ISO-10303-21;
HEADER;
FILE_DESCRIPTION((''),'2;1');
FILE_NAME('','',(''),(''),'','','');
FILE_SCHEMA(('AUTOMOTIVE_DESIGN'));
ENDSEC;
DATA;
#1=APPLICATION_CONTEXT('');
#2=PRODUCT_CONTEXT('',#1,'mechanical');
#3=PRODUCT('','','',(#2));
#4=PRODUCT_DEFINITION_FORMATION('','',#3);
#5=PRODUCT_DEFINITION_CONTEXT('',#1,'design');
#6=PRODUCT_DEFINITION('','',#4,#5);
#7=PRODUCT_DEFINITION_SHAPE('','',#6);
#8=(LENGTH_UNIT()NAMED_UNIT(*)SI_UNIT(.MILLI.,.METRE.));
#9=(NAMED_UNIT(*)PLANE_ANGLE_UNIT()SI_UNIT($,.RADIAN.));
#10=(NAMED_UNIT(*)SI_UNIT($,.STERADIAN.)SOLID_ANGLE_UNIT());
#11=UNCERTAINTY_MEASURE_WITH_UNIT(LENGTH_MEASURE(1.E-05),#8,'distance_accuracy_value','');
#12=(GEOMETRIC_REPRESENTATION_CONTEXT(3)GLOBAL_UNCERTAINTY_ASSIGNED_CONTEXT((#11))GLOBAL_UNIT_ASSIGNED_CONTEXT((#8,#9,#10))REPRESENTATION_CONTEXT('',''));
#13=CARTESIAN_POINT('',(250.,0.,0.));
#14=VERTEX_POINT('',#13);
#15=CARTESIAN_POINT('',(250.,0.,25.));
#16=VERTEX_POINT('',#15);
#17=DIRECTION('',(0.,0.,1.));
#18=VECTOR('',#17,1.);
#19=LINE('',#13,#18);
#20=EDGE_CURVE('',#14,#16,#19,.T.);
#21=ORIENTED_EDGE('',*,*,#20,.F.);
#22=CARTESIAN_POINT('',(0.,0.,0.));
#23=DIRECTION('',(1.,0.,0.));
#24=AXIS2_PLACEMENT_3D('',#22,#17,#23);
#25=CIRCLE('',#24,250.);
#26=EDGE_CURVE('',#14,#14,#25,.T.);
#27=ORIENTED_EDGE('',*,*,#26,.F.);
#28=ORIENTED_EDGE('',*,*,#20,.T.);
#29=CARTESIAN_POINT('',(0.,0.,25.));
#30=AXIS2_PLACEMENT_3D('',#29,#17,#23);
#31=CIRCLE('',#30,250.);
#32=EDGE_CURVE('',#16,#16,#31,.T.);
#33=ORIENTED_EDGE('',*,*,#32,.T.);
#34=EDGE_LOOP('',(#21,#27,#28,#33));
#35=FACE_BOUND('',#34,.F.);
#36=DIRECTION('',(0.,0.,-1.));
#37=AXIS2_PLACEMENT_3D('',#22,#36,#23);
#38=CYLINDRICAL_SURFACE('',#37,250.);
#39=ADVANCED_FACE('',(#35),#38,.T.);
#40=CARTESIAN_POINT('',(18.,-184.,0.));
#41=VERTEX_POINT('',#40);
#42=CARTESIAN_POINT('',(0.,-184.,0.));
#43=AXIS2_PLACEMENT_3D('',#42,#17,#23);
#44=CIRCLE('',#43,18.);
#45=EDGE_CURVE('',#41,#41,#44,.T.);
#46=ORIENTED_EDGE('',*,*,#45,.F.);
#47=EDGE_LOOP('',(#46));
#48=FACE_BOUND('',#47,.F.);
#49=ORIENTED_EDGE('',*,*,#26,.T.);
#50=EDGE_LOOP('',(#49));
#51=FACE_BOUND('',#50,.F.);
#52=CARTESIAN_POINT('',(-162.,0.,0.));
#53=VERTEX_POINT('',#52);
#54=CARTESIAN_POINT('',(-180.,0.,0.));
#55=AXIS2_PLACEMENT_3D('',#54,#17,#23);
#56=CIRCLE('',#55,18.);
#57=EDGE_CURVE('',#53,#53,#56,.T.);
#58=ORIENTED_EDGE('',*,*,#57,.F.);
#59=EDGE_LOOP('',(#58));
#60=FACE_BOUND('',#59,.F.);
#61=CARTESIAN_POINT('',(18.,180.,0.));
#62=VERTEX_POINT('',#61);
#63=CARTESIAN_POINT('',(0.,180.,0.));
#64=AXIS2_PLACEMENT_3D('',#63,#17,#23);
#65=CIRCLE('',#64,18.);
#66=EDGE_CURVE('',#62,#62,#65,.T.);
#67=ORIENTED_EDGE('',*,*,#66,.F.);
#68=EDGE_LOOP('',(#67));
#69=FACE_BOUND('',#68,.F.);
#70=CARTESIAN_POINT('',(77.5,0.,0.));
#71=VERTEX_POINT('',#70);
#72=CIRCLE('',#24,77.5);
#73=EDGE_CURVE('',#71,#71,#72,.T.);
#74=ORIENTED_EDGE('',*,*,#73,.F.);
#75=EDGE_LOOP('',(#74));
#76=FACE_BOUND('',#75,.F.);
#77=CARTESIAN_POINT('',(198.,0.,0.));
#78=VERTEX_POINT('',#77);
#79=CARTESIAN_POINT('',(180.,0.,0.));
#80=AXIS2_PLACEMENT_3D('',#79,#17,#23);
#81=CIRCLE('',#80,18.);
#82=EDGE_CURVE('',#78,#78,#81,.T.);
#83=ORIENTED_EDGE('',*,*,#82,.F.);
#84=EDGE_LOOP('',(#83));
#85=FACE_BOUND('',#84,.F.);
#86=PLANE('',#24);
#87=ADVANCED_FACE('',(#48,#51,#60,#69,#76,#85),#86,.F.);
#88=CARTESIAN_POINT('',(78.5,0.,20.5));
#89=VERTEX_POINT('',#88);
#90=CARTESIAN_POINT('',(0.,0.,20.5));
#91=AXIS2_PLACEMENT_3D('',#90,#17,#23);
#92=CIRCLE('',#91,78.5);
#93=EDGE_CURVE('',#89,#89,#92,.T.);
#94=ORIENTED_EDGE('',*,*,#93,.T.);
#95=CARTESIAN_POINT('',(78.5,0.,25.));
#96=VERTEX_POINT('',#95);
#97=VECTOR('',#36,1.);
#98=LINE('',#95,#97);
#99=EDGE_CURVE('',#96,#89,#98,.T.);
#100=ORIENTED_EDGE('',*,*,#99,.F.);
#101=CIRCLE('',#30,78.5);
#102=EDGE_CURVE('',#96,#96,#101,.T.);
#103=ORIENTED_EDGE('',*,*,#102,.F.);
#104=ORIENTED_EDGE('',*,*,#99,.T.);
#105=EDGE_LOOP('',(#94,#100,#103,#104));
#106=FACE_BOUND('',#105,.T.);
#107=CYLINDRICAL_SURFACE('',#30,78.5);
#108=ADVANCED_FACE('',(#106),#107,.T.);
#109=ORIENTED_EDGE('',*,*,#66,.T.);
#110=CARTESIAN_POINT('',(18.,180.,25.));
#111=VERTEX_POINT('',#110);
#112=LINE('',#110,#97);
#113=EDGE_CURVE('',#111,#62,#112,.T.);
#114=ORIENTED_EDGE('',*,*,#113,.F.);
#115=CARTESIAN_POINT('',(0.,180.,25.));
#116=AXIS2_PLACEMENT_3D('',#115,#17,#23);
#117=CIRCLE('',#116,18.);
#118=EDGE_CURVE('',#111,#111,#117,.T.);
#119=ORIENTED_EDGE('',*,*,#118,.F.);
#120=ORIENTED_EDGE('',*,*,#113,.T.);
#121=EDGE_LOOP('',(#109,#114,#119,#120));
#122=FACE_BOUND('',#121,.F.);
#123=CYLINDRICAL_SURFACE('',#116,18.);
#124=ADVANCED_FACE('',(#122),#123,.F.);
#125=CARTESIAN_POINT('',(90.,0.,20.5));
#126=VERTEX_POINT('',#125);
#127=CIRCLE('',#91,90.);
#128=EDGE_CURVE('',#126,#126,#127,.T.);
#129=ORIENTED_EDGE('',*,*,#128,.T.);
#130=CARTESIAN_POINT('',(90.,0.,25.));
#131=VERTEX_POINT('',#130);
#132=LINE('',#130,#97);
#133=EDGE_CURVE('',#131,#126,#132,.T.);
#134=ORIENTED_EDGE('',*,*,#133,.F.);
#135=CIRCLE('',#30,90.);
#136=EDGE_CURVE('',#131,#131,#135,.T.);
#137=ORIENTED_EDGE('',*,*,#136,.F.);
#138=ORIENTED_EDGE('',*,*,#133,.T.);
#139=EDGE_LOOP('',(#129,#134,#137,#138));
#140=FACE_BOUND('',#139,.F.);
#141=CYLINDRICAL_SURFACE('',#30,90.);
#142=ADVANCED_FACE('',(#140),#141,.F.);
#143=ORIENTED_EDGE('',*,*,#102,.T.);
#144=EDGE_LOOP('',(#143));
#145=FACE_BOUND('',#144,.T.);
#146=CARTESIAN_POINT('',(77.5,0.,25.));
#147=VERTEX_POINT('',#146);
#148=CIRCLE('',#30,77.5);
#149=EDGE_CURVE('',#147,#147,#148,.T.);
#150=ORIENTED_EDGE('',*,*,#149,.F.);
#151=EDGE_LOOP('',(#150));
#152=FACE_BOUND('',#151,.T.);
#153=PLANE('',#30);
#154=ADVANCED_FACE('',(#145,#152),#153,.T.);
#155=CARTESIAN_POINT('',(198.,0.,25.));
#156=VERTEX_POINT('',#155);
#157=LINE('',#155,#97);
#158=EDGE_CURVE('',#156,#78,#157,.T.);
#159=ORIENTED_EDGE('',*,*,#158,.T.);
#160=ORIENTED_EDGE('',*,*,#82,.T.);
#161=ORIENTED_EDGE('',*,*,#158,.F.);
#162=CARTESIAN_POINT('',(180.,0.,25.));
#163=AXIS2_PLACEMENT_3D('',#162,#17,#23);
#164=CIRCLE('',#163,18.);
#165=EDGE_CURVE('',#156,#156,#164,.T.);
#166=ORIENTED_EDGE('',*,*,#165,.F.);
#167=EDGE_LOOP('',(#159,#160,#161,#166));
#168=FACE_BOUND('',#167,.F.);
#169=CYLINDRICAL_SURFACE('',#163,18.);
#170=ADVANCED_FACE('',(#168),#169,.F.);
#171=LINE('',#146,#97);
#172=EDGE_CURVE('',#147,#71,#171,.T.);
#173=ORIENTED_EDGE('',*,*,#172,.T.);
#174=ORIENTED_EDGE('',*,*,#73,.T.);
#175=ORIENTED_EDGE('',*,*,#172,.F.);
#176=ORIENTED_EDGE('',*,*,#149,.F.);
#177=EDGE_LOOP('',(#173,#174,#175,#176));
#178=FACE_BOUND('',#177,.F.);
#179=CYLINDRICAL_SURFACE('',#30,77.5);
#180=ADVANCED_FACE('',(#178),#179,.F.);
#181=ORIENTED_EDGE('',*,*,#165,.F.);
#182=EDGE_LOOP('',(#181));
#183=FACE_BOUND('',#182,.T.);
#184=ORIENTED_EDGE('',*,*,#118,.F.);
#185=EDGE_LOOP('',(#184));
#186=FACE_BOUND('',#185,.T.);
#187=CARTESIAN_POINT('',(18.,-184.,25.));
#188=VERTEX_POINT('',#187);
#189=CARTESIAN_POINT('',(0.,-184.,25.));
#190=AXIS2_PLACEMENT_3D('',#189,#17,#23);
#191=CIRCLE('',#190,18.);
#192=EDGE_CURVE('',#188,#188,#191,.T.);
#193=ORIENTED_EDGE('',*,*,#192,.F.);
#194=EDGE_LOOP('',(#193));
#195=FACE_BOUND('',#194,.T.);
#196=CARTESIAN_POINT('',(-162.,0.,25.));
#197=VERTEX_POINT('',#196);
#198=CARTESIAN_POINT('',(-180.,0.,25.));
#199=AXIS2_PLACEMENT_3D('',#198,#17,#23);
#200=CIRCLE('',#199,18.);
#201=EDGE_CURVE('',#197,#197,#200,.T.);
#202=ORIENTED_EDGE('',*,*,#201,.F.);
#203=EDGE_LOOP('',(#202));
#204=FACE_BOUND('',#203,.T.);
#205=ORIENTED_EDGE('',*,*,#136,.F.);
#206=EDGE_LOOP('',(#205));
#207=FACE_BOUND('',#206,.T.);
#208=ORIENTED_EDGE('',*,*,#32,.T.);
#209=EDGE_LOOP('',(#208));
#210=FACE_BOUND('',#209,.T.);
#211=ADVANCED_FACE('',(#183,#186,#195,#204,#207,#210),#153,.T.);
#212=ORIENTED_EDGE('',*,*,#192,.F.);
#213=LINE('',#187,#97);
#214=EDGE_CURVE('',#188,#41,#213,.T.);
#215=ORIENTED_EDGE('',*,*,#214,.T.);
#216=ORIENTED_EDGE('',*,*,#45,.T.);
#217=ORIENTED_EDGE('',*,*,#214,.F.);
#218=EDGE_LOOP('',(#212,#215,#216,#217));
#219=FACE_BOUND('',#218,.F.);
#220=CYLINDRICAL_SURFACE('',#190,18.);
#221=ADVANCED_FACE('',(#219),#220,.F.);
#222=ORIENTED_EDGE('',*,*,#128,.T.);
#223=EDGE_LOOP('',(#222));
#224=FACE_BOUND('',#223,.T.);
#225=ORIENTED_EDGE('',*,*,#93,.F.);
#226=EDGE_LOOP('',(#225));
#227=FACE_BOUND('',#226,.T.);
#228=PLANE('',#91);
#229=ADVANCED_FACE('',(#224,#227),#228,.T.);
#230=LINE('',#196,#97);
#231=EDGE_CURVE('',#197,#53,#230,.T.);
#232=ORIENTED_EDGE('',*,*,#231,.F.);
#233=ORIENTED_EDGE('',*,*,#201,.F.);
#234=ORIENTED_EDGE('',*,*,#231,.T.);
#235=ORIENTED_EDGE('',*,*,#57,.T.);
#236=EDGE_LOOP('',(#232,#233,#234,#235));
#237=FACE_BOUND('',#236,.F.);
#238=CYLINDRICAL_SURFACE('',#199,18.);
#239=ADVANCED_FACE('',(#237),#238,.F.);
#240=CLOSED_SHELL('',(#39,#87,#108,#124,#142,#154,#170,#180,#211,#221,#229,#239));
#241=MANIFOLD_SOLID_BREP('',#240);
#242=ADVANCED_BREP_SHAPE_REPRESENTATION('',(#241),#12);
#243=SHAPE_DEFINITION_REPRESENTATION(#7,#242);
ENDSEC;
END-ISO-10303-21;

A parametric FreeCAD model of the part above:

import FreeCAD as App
import Part
import Sketcher

V = App.Vector
Q = App.Units.Quantity

doc = App.newDocument("Part")
body = doc.addObject("PartDesign::Body", "Body")

# Sketch on XY plane
sketch1 = body.newObject("Sketcher::SketchObject", "Sketch")
sketch1.AttachmentSupport = (doc.getObject("XY_Plane"), [""])
sketch1.MapMode = "FlatFace"
sketch1.addGeometry(Part.Circle(V(0, 0, 0), V(0, 0, 1), 250), False)
sketch1.addConstraint(Sketcher.Constraint("Coincident", 0, 3, -1, 1))
sketch1.addConstraint(Sketcher.Constraint("Diameter", 0, Q("500 mm")))
pad1 = body.newObject("PartDesign::Pad", "Pad")
pad1.Profile = sketch1
pad1.Length = 25

# Sketch on XY plane
sketch2 = body.newObject("Sketcher::SketchObject", "Sketch001")
sketch2.AttachmentSupport = (doc.getObject("XY_Plane"), [""])
sketch2.MapMode = "FlatFace"
sketch2.AttachmentOffset = App.Placement(V(0, 0, 25), App.Rotation())
sketch2.addGeometry(Part.Circle(V(0, 180, 0), V(0, 0, 1), 18), False)
sketch2.addGeometry(Part.Circle(V(180, 0, 0), V(0, 0, 1), 18), False)
sketch2.addGeometry(Part.Circle(V(0, -184, 0), V(0, 0, 1), 18), False)
sketch2.addGeometry(Part.Circle(V(-180, 0, 0), V(0, 0, 1), 18), False)
sketch2.addConstraint(Sketcher.Constraint("Equal", 0, 1))
sketch2.addConstraint(Sketcher.Constraint("Equal", 1, 2))
sketch2.addConstraint(Sketcher.Constraint("Equal", 2, 3))
sketch2.addConstraint(Sketcher.Constraint("Symmetric", 1, 3, 3, 3, -1, 1))
sketch2.addConstraint(Sketcher.Constraint("PointOnObject", 0, 3, -2))
sketch2.addConstraint(Sketcher.Constraint("PointOnObject", 1, 3, -1))
sketch2.addConstraint(Sketcher.Constraint("PointOnObject", 2, 3, -2))
sketch2.addConstraint(Sketcher.Constraint("Diameter", 0, Q("36 mm")))
sketch2.addConstraint(Sketcher.Constraint("DistanceY", -1, 1, 0, 3, Q("180 mm")))
sketch2.addConstraint(Sketcher.Constraint("DistanceX", -1, 1, 1, 3, Q("180 mm")))
sketch2.addConstraint(Sketcher.Constraint("DistanceY", 2, 3, -1, 1, Q("184 mm")))
pocket1 = body.newObject("PartDesign::Pocket", "Pocket")
pocket1.Profile = sketch2
pocket1.Length = 25

# Sketch on XY plane
sketch3 = body.newObject("Sketcher::SketchObject", "Sketch002")
sketch3.AttachmentSupport = (doc.getObject("XY_Plane"), [""])
sketch3.MapMode = "FlatFace"
sketch3.AttachmentOffset = App.Placement(V(0, 0, 25), App.Rotation())
sketch3.addGeometry(Part.Circle(V(0, 0, 0), V(0, 0, 1), 85), False)
sketch3.addConstraint(Sketcher.Constraint("Coincident", 0, 3, -1, 1))
sketch3.addConstraint(Sketcher.Constraint("Diameter", 0, Q("170 mm")))
pocket2 = body.newObject("PartDesign::Pocket", "Pocket001")
pocket2.Profile = sketch3
pocket2.Length = 200

# Sketch on XY plane
sketch4 = body.newObject("Sketcher::SketchObject", "Sketch003")
sketch4.AttachmentSupport = (doc.getObject("XY_Plane"), [""])
sketch4.MapMode = "FlatFace"
sketch4.AttachmentOffset = App.Placement(V(0, 0, 25), App.Rotation())
sketch4.addGeometry(Part.Circle(V(0, 0, 0), V(0, 0, 1), 85), False)
sketch4.addConstraint(Sketcher.Constraint("Coincident", 0, 3, -1, 1))
sketch4.addConstraint(Sketcher.Constraint("Diameter", 0, Q("170 mm")))
pad2 = body.newObject("PartDesign::Pad", "Pad001")
pad2.Profile = sketch4
pad2.Length = 25
pad2.Reversed = True

# Sketch on XY plane
sketch5 = body.newObject("Sketcher::SketchObject", "Sketch004")
sketch5.AttachmentSupport = (doc.getObject("XY_Plane"), [""])
sketch5.MapMode = "FlatFace"
sketch5.AttachmentOffset = App.Placement(V(0, 0, 25), App.Rotation())
sketch5.addGeometry(Part.Circle(V(0, 0, 0), V(0, 0, 1), 77.5), False)
sketch5.addConstraint(Sketcher.Constraint("Coincident", 0, 3, -1, 1))
sketch5.addConstraint(Sketcher.Constraint("Diameter", 0, Q("155 mm")))
pocket3 = body.newObject("PartDesign::Pocket", "Pocket002")
pocket3.Profile = sketch5
pocket3.Length = 25

# Sketch on XY plane
sketch6 = body.newObject("Sketcher::SketchObject", "Sketch005")
sketch6.AttachmentSupport = (doc.getObject("XY_Plane"), [""])
sketch6.MapMode = "FlatFace"
sketch6.AttachmentOffset = App.Placement(V(0, 0, 25), App.Rotation())
sketch6.addGeometry(Part.Circle(V(0, 0, 0), V(0, 0, 1), 87), False)
sketch6.addGeometry(Part.Circle(V(0, 0, 0), V(0, 0, 1), 82), False)
sketch6.addConstraint(Sketcher.Constraint("Coincident", 0, 3, -1, 1))
sketch6.addConstraint(Sketcher.Constraint("Coincident", 1, 3, -1, 1))
sketch6.addConstraint(Sketcher.Constraint("Diameter", 0, Q("174 mm")))
sketch6.addConstraint(Sketcher.Constraint("Diameter", 1, Q("164 mm")))
pocket4 = body.newObject("PartDesign::Pocket", "Pocket003")
pocket4.Profile = sketch6
pocket4.Length = 4.5

# Sketch on XY plane
sketch7 = body.newObject("Sketcher::SketchObject", "Sketch006")
sketch7.AttachmentSupport = (doc.getObject("XY_Plane"), [""])
sketch7.MapMode = "FlatFace"
sketch7.AttachmentOffset = App.Placement(V(0, 0, 25), App.Rotation())
sketch7.addGeometry(Part.Circle(V(0, 0, 0), V(0, 0, 1), 84.5), False)
sketch7.addGeometry(Part.Circle(V(0, 0, 0), V(0, 0, 1), 79.5), False)
sketch7.addConstraint(Sketcher.Constraint("Coincident", 0, 3, -1, 1))
sketch7.addConstraint(Sketcher.Constraint("Coincident", 1, 3, -1, 1))
sketch7.addConstraint(Sketcher.Constraint("Diameter", 0, Q("169 mm")))
sketch7.addConstraint(Sketcher.Constraint("Diameter", 1, Q("159 mm")))
pocket5 = body.newObject("PartDesign::Pocket", "Pocket004")
pocket5.Profile = sketch7
pocket5.Length = 4.5

# Sketch on XY plane
sketch8 = body.newObject("Sketcher::SketchObject", "Sketch007")
sketch8.AttachmentSupport = (doc.getObject("XY_Plane"), [""])
sketch8.MapMode = "FlatFace"
sketch8.AttachmentOffset = App.Placement(V(0, 0, 25), App.Rotation())
sketch8.addGeometry(Part.Circle(V(0, 0, 0), V(0, 0, 1), 90), False)
sketch8.addGeometry(Part.Circle(V(0, 0, 0), V(0, 0, 1), 78.5), False)
sketch8.addConstraint(Sketcher.Constraint("Coincident", 0, 3, -1, 1))
sketch8.addConstraint(Sketcher.Constraint("Coincident", 1, 3, -1, 1))
sketch8.addConstraint(Sketcher.Constraint("Diameter", 0, Q("180 mm")))
sketch8.addConstraint(Sketcher.Constraint("Diameter", 1, Q("157 mm")))
pocket6 = body.newObject("PartDesign::Pocket", "Pocket005")
pocket6.Profile = sketch8
pocket6.Length = 4.5

doc.recompute()
